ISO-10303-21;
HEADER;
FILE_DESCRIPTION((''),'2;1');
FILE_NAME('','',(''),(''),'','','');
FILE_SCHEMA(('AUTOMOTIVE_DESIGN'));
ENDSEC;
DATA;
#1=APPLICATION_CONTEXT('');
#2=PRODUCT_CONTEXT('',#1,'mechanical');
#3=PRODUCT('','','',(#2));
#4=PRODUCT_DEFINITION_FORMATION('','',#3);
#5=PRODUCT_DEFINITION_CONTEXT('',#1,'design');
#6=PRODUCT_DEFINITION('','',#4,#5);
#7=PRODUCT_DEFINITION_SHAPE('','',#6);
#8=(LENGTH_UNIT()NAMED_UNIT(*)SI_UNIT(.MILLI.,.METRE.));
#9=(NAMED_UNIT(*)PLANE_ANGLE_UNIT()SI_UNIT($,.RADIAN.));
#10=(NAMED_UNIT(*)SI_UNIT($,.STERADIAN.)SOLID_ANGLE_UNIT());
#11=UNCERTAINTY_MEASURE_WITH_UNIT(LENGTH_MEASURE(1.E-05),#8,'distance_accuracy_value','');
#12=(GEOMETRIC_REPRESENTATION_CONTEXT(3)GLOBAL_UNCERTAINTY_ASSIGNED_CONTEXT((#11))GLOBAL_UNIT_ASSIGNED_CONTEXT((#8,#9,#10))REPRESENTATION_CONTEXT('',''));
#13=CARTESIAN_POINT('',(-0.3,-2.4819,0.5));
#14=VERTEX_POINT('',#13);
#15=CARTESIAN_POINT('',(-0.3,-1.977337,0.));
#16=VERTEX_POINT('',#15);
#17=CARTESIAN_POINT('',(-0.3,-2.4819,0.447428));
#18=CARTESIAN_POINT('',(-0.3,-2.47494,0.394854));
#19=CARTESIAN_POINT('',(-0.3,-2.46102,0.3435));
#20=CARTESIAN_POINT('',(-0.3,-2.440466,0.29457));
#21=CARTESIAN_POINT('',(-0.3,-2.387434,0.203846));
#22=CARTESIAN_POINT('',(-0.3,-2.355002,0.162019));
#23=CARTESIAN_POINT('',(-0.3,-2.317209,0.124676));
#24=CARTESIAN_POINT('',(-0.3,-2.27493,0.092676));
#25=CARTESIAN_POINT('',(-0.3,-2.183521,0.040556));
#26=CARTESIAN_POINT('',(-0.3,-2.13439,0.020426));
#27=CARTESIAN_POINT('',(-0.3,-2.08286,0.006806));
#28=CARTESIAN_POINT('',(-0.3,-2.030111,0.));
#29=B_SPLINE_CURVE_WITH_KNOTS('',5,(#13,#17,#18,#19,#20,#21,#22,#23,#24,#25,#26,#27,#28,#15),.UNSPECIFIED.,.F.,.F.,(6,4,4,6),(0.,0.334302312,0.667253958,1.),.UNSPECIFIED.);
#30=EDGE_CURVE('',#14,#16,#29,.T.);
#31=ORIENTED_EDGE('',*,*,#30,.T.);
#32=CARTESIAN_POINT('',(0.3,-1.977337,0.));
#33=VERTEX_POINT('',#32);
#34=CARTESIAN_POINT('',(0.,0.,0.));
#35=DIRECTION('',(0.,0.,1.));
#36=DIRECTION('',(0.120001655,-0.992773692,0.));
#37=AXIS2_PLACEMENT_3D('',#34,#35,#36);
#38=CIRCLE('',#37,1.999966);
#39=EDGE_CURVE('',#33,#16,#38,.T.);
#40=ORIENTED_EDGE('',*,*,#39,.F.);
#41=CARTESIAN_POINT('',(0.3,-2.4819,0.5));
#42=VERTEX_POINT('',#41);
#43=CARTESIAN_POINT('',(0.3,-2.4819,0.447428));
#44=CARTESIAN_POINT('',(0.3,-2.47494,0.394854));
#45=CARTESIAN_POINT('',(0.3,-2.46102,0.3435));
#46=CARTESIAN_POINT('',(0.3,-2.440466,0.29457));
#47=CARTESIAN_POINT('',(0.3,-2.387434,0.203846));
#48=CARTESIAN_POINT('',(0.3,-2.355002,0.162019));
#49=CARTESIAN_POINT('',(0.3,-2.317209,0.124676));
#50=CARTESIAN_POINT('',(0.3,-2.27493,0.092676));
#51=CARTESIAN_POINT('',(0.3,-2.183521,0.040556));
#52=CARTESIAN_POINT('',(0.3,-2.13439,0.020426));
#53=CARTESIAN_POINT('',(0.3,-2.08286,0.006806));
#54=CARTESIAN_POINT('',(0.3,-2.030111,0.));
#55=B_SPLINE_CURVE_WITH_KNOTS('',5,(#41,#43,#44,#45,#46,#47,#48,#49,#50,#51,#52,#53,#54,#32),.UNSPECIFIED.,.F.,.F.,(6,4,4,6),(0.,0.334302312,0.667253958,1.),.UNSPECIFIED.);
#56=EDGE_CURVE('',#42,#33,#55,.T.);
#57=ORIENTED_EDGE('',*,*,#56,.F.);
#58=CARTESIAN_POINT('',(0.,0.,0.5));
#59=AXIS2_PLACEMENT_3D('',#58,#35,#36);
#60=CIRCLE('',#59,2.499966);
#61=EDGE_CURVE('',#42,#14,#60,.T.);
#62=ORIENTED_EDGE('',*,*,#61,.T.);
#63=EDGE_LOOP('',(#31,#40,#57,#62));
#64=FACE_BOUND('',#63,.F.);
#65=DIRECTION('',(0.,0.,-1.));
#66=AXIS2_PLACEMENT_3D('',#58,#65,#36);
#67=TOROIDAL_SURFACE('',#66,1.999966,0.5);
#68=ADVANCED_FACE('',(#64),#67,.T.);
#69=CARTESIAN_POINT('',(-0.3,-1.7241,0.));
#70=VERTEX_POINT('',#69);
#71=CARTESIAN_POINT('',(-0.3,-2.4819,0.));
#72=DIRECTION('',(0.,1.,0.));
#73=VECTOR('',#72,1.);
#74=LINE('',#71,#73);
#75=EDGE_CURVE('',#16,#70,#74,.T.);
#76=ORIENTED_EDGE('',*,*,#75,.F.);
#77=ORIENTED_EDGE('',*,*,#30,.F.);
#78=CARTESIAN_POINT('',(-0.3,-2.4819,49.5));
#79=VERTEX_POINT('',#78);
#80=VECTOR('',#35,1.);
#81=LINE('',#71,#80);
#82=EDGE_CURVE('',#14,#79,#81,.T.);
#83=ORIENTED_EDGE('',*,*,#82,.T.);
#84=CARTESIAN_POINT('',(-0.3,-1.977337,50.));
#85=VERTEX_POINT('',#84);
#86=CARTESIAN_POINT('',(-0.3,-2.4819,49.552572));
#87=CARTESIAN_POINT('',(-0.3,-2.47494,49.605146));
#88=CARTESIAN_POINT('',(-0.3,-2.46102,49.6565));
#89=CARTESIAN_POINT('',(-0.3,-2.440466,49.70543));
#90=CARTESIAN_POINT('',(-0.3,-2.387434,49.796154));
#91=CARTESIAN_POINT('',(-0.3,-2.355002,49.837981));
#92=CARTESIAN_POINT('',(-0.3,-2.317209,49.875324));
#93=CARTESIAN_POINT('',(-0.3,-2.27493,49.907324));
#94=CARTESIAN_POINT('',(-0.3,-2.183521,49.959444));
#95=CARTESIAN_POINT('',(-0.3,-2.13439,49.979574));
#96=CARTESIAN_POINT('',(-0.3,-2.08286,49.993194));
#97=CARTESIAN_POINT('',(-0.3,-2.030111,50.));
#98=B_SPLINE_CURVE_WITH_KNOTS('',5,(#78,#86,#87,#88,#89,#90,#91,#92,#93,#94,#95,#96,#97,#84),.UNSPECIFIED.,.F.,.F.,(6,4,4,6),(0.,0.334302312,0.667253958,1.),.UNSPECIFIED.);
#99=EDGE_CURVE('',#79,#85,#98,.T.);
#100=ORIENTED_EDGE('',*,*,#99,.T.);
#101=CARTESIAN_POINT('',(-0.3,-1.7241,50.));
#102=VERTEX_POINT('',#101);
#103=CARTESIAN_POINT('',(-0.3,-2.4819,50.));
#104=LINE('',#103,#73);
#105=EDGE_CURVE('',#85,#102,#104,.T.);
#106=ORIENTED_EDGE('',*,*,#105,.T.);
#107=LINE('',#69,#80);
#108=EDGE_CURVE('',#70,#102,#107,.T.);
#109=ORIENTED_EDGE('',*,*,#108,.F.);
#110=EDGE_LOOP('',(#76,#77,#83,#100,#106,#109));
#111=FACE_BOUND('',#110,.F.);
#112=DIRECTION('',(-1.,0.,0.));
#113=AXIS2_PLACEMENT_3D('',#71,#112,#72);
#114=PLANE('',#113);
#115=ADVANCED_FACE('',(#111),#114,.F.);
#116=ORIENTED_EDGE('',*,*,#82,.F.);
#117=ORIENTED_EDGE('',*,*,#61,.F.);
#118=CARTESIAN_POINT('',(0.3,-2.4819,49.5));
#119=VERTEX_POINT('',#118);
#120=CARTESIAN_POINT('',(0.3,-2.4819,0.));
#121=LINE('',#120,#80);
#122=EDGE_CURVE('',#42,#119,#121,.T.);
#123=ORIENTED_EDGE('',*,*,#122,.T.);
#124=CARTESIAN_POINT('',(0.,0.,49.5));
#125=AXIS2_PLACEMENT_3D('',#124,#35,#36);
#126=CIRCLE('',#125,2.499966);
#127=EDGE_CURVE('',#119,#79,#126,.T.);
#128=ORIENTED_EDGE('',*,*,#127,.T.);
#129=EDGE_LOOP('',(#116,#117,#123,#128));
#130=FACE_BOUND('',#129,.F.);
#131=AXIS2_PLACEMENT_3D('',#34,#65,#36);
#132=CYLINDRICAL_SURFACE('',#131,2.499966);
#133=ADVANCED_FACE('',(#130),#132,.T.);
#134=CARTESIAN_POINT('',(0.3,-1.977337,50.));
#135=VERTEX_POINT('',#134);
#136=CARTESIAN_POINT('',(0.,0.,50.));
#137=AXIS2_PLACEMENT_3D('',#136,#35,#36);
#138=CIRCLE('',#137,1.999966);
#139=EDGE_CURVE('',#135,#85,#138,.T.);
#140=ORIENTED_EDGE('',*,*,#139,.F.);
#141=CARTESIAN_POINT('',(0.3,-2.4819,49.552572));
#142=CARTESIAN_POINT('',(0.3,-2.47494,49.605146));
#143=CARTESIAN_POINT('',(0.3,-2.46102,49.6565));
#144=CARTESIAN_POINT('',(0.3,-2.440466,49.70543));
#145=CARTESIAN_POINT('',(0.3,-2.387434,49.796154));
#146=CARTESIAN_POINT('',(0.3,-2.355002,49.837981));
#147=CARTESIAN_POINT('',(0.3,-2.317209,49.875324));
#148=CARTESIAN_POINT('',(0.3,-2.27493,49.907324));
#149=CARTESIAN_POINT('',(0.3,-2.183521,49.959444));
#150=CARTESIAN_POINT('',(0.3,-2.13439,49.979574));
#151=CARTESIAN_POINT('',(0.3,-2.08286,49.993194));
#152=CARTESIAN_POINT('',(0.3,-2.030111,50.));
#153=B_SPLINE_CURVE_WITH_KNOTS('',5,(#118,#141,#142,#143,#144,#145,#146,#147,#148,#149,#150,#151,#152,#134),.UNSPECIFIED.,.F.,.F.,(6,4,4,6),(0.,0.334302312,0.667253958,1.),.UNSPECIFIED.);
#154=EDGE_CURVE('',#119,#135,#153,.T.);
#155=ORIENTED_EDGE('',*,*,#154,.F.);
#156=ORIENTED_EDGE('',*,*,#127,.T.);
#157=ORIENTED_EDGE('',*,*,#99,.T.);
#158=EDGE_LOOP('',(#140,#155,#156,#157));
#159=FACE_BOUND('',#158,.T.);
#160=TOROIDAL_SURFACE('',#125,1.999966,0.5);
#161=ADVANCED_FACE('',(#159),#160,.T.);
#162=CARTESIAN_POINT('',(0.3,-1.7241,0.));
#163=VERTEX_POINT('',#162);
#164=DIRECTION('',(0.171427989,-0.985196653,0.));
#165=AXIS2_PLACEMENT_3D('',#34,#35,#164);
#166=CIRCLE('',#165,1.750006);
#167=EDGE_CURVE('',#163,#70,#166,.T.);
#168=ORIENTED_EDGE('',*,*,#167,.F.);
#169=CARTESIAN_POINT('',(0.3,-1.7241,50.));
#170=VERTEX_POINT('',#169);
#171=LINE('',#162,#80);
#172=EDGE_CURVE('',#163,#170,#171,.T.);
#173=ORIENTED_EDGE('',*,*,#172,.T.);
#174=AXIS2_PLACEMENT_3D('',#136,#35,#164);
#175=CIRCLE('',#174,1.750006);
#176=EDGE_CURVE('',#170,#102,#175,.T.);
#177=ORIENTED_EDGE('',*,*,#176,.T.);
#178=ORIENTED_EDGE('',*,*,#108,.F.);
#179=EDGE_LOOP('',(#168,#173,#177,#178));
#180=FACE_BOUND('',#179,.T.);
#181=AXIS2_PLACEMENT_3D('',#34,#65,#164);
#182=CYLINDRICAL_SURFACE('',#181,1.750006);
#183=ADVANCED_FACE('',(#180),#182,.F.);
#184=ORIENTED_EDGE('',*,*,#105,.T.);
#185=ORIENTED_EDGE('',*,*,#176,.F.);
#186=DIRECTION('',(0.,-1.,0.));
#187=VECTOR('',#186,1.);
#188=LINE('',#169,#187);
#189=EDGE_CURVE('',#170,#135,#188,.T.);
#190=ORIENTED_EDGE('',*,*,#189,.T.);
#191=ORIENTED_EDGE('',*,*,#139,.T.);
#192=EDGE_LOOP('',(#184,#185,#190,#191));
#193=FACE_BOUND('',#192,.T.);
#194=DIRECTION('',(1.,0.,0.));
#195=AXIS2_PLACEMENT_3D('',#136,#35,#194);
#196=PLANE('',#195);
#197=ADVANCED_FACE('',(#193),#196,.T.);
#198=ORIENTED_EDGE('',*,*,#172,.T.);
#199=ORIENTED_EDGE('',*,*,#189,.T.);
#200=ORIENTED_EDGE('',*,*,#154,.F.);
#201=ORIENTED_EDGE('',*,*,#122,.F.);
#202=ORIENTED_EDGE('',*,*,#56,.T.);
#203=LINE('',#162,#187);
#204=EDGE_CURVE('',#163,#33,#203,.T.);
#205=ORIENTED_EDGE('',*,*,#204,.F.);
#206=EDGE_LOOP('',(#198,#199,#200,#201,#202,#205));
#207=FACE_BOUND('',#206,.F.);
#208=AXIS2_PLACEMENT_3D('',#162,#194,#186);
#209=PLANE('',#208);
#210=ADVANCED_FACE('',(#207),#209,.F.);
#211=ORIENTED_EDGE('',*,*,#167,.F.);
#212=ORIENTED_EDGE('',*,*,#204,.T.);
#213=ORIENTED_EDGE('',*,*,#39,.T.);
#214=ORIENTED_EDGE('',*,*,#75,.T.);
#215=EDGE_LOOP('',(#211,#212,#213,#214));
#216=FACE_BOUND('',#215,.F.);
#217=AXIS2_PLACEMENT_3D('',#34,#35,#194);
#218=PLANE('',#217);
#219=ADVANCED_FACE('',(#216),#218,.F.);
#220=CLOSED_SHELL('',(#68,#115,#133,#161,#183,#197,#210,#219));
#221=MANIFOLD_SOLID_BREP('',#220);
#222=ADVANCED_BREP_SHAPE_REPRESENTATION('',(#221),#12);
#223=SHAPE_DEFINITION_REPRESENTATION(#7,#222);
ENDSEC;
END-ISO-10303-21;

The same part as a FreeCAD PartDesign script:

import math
import FreeCAD as App
import Part
import Sketcher


def edges_at(feature, points):
    """Names of the edges that pass closest to the given points."""
    edges = feature.Shape.Edges
    near = lambda p: min(range(len(edges)), key=lambda i: edges[i].distToShape(Part.Vertex(*p))[0])
    return sorted({f"Edge{near(p) + 1}" for p in points})

doc = App.newDocument("Part")
body = doc.addObject("PartDesign::Body", "Body")

# Sketch on XY plane
sketch1 = body.newObject("Sketcher::SketchObject", "Sketch")
sketch1.AttachmentSupport = (doc.getObject("XY_Plane"), [""])
sketch1.MapMode = "FlatFace"
sketch1.addGeometry(Part.LineSegment(App.Vector(0.3, -1.7, 0), App.Vector(0.3, -2.5, 0)), False)
sketch1.addGeometry(Part.ArcOfCircle(Part.Circle(App.Vector(0, 0, 0), App.Vector(0, 0, 1), 2.5), math.radians(-83), math.radians(263)), False)
sketch1.addGeometry(Part.LineSegment(App.Vector(-0.3, -2.5, 0), App.Vector(-0.3, -1.7, 0)), False)
sketch1.addGeometry(Part.ArcOfCircle(Part.Circle(App.Vector(0, 0, 0), App.Vector(0, 0, 1), 1.8), math.radians(-80), math.radians(260)), False)
sketch1.addConstraint(Sketcher.Constraint("Coincident", 0, 2, 1, 1))
sketch1.addConstraint(Sketcher.Constraint("Coincident", 1, 2, 2, 1))
sketch1.addConstraint(Sketcher.Constraint("Coincident", 2, 2, 3, 2))
sketch1.addConstraint(Sketcher.Constraint("Coincident", 3, 1, 0, 1))
sketch1.addConstraint(Sketcher.Constraint("Vertical", 0))
sketch1.addConstraint(Sketcher.Constraint("Vertical", 2))
sketch1.addConstraint(Sketcher.Constraint("Coincident", 1, 3, -1, 1))
sketch1.addConstraint(Sketcher.Constraint("Coincident", 3, 3, -1, 1))
sketch1.addConstraint(Sketcher.Constraint("Horizontal", 0, 2, 1, 2))
sketch1.addConstraint(Sketcher.Constraint("Radius", 1, 2.5))
sketch1.addConstraint(Sketcher.Constraint("Radius", 3, 1.75))
sketch1.addConstraint(Sketcher.Constraint("DistanceX", -1, 1, 0, 2, 0.3))
pad1 = body.newObject("PartDesign::Pad", "Pad")
pad1.Profile = sketch1
pad1.Length = 50
doc.recompute()

fillet = body.newObject("PartDesign::Fillet", "Fillet")
fillet.Base = (pad1, edges_at(pad1, [(0, 2.5, 50), (0, 2.5, 0)]))
fillet.Radius = 0.5

doc.recompute()
